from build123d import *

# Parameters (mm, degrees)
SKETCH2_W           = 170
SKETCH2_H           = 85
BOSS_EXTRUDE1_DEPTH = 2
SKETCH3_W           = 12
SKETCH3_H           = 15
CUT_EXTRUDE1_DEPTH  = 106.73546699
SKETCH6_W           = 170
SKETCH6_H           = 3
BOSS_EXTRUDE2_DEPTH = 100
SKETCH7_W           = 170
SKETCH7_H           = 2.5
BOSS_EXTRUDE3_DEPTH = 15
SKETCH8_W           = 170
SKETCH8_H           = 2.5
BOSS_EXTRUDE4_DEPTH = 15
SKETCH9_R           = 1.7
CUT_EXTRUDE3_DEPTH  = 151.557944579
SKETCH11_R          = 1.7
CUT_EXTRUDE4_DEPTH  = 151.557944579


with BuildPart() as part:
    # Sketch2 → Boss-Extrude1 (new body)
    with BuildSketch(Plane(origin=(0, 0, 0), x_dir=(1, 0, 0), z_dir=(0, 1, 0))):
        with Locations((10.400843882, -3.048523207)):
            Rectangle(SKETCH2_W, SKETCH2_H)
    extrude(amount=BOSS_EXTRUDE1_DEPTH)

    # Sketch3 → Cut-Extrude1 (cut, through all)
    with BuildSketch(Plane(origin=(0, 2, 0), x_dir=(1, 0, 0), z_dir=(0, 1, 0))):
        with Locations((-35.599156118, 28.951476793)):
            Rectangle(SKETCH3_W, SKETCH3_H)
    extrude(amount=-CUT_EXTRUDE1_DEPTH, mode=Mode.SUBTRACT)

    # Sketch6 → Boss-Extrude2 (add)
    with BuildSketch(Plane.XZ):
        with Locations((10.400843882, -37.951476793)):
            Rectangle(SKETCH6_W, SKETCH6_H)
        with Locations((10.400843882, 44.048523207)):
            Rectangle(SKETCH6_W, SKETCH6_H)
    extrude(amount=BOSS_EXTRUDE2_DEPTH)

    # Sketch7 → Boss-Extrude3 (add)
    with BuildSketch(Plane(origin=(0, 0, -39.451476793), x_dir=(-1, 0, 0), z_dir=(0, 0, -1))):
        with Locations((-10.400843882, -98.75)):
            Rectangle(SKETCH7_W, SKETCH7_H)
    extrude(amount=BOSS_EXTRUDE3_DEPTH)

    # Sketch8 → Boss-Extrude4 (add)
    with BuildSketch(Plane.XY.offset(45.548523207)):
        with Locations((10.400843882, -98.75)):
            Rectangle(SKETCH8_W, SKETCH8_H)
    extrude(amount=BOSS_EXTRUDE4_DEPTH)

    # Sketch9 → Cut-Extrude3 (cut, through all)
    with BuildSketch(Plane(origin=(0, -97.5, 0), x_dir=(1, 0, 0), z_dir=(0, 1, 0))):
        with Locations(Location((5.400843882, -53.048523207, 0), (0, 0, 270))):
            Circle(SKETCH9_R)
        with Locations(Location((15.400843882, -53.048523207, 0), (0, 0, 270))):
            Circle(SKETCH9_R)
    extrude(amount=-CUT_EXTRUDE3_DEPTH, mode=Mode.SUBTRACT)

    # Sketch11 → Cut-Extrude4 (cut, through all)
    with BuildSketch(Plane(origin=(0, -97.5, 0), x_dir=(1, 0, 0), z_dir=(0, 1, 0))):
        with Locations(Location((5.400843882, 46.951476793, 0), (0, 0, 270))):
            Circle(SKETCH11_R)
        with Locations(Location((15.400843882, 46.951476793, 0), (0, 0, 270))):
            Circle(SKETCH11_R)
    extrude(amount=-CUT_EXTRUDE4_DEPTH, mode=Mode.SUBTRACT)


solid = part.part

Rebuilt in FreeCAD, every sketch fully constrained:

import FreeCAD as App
import Part
import Sketcher
from FreeCAD import Vector
Q = App.Units.Quantity

doc = App.newDocument("Part")
body = doc.addObject("PartDesign::Body", "Body")

sketch1 = body.newObject("Sketcher::SketchObject", "Sketch")
sketch1.AttachmentSupport = (doc.getObject("XZ_Plane"), [""])
sketch1.MapMode = "FlatFace"
sketch1.addGeometry(Part.LineSegment(Vector(-75, -39, 0), Vector(-75, 46, 0)), False)
sketch1.addGeometry(Part.LineSegment(Vector(-75, 46, 0), Vector(95, 46, 0)), False)
sketch1.addGeometry(Part.LineSegment(Vector(95, 46, 0), Vector(95, -39, 0)), False)
sketch1.addGeometry(Part.LineSegment(Vector(95, -39, 0), Vector(-75, -39, 0)), False)
sketch1.addConstraint(Sketcher.Constraint("Coincident", 0, 2, 1, 1))
sketch1.addConstraint(Sketcher.Constraint("Coincident", 1, 2, 2, 1))
sketch1.addConstraint(Sketcher.Constraint("Coincident", 2, 2, 3, 1))
sketch1.addConstraint(Sketcher.Constraint("Coincident", 3, 2, 0, 1))
sketch1.addConstraint(Sketcher.Constraint("Vertical", 0))
sketch1.addConstraint(Sketcher.Constraint("Horizontal", 1))
sketch1.addConstraint(Sketcher.Constraint("Vertical", 2))
sketch1.addConstraint(Sketcher.Constraint("Horizontal", 3))
sketch1.addConstraint(Sketcher.Constraint("DistanceX", 1, 1, 1, 2, Q("170 mm")))
sketch1.addConstraint(Sketcher.Constraint("DistanceY", 0, 1, 0, 2, Q("85 mm")))
sketch1.addConstraint(Sketcher.Constraint("DistanceX", 0, 2, -1, 1, Q("74.599156 mm")))
sketch1.addConstraint(Sketcher.Constraint("DistanceY", -1, 1, 0, 2, Q("45.548523 mm")))
pad1 = body.newObject("PartDesign::Pad", "Pad")
pad1.Profile = sketch1
pad1.Length = 2
pad1.Reversed = True

sketch2 = body.newObject("Sketcher::SketchObject", "Sketch001")
sketch2.AttachmentSupport = (doc.getObject("XZ_Plane"), [""])
sketch2.MapMode = "FlatFace"
sketch2.AttachmentOffset = App.Placement(Vector(0, 0, -2), App.Rotation())
sketch2.addGeometry(Part.LineSegment(Vector(-42, -36, 0), Vector(-42, -21, 0)), False)
sketch2.addGeometry(Part.LineSegment(Vector(-42, -21, 0), Vector(-30, -21, 0)), False)
sketch2.addGeometry(Part.LineSegment(Vector(-30, -21, 0), Vector(-30, -36, 0)), False)
sketch2.addGeometry(Part.LineSegment(Vector(-30, -36, 0), Vector(-42, -36, 0)), False)
sketch2.addConstraint(Sketcher.Constraint("Coincident", 0, 2, 1, 1))
sketch2.addConstraint(Sketcher.Constraint("Coincident", 1, 2, 2, 1))
sketch2.addConstraint(Sketcher.Constraint("Coincident", 2, 2, 3, 1))
sketch2.addConstraint(Sketcher.Constraint("Coincident", 3, 2, 0, 1))
sketch2.addConstraint(Sketcher.Constraint("Vertical", 0))
sketch2.addConstraint(Sketcher.Constraint("Horizontal", 1))
sketch2.addConstraint(Sketcher.Constraint("Vertical", 2))
sketch2.addConstraint(Sketcher.Constraint("Horizontal", 3))
sketch2.addConstraint(Sketcher.Constraint("DistanceX", 1, 1, 1, 2, Q("12 mm")))
sketch2.addConstraint(Sketcher.Constraint("DistanceY", 0, 1, 0, 2, Q("15 mm")))
sketch2.addConstraint(Sketcher.Constraint("DistanceX", 0, 2, -1, 1, Q("41.599156 mm")))
sketch2.addConstraint(Sketcher.Constraint("DistanceY", 0, 2, -1, 1, Q("21.451477 mm")))
pocket1 = body.newObject("PartDesign::Pocket", "Pocket")
pocket1.Profile = sketch2
pocket1.Type = "ThroughAll"
pocket1.Reversed = True

sketch3 = body.newObject("Sketcher::SketchObject", "Sketch002")
sketch3.AttachmentSupport = (doc.getObject("XZ_Plane"), [""])
sketch3.MapMode = "FlatFace"
sketch3.addGeometry(Part.LineSegment(Vector(-74.6, -36.5, 0), Vector(-74.6, -39.5, 0)), False)
sketch3.addGeometry(Part.LineSegment(Vector(-74.6, -39.5, 0), Vector(95.4, -39.5, 0)), False)
sketch3.addGeometry(Part.LineSegment(Vector(95.4, -39.5, 0), Vector(95.4, -36.5, 0)), False)
sketch3.addGeometry(Part.LineSegment(Vector(95.4, -36.5, 0), Vector(-74.6, -36.5, 0)), False)
sketch3.addGeometry(Part.LineSegment(Vector(-74.6, 45.5, 0), Vector(-74.6, 42.5, 0)), False)
sketch3.addGeometry(Part.LineSegment(Vector(-74.6, 42.5, 0), Vector(95.4, 42.5, 0)), False)
sketch3.addGeometry(Part.LineSegment(Vector(95.4, 42.5, 0), Vector(95.4, 45.5, 0)), False)
sketch3.addGeometry(Part.LineSegment(Vector(95.4, 45.5, 0), Vector(-74.6, 45.5, 0)), False)
sketch3.addConstraint(Sketcher.Constraint("Coincident", 0, 2, 1, 1))
sketch3.addConstraint(Sketcher.Constraint("Coincident", 1, 2, 2, 1))
sketch3.addConstraint(Sketcher.Constraint("Coincident", 2, 2, 3, 1))
sketch3.addConstraint(Sketcher.Constraint("Coincident", 3, 2, 0, 1))
sketch3.addConstraint(Sketcher.Constraint("Coincident", 4, 2, 5, 1))
sketch3.addConstraint(Sketcher.Constraint("Coincident", 5, 2, 6, 1))
sketch3.addConstraint(Sketcher.Constraint("Coincident", 6, 2, 7, 1))
sketch3.addConstraint(Sketcher.Constraint("Coincident", 7, 2, 4, 1))
sketch3.addConstraint(Sketcher.Constraint("Vertical", 0))
sketch3.addConstraint(Sketcher.Constraint("Horizontal", 1))
sketch3.addConstraint(Sketcher.Constraint("Vertical", 2))
sketch3.addConstraint(Sketcher.Constraint("Horizontal", 3))
sketch3.addConstraint(Sketcher.Constraint("Vertical", 4))
sketch3.addConstraint(Sketcher.Constraint("Horizontal", 5))
sketch3.addConstraint(Sketcher.Constraint("Vertical", 6))
sketch3.addConstraint(Sketcher.Constraint("Horizontal", 7))
sketch3.addConstraint(Sketcher.Constraint("Vertical", 3, 2, 4, 2))
sketch3.addConstraint(Sketcher.Constraint("Vertical", 2, 2, 5, 2))
sketch3.addConstraint(Sketcher.Constraint("Equal", 2, 4))
sketch3.addConstraint(Sketcher.Constraint("DistanceX", 1, 1, 1, 2, Q("170 mm")))
sketch3.addConstraint(Sketcher.Constraint("DistanceY", 0, 2, 0, 1, Q("3 mm")))
sketch3.addConstraint(Sketcher.Constraint("DistanceY", 3, 2, 4, 2, Q("79 mm")))
sketch3.addConstraint(Sketcher.Constraint("DistanceX", 0, 2, -1, 1, Q("74.599156 mm")))
sketch3.addConstraint(Sketcher.Constraint("DistanceY", 0, 2, -1, 1, Q("39.451477 mm")))
pad2 = body.newObject("PartDesign::Pad", "Pad001")
pad2.Profile = sketch3
pad2.Length = 100

sketch4 = body.newObject("Sketcher::SketchObject", "Sketch003")
sketch4.AttachmentSupport = (doc.getObject("XY_Plane"), [""])
sketch4.MapMode = "FlatFace"
sketch4.AttachmentOffset = App.Placement(Vector(0, 0, -39.451477), App.Rotation())
sketch4.addGeometry(Part.LineSegment(Vector(95.4, -97.5, 0), Vector(95.4, -100, 0)), False)
sketch4.addGeometry(Part.LineSegment(Vector(95.4, -100, 0), Vector(-74.6, -100, 0)), False)
sketch4.addGeometry(Part.LineSegment(Vector(-74.6, -100, 0), Vector(-74.6, -97.5, 0)), False)
sketch4.addGeometry(Part.LineSegment(Vector(-74.6, -97.5, 0), Vector(95.4, -97.5, 0)), False)
sketch4.addConstraint(Sketcher.Constraint("Coincident", 0, 2, 1, 1))
sketch4.addConstraint(Sketcher.Constraint("Coincident", 1, 2, 2, 1))
sketch4.addConstraint(Sketcher.Constraint("Coincident", 2, 2, 3, 1))
sketch4.addConstraint(Sketcher.Constraint("Coincident", 3, 2, 0, 1))
sketch4.addConstraint(Sketcher.Constraint("Vertical", 0))
sketch4.addConstraint(Sketcher.Constraint("Horizontal", 1))
sketch4.addConstraint(Sketcher.Constraint("Vertical", 2))
sketch4.addConstraint(Sketcher.Constraint("Horizontal", 3))
sketch4.addConstraint(Sketcher.Constraint("DistanceX", 1, 2, 1, 1, Q("170 mm")))
sketch4.addConstraint(Sketcher.Constraint("DistanceY", 0, 2, 0, 1, Q("2.5 mm")))
sketch4.addConstraint(Sketcher.Constraint("DistanceY", 0, 2, -1, 1, Q("100 mm")))
sketch4.addConstraint(Sketcher.Constraint("DistanceX", -1, 1, 0, 2, Q("95.400844 mm")))
pad3 = body.newObject("PartDesign::Pad", "Pad002")
pad3.Profile = sketch4
pad3.Length = 15
pad3.Reversed = True

sketch5 = body.newObject("Sketcher::SketchObject", "Sketch004")
sketch5.AttachmentSupport = (doc.getObject("XY_Plane"), [""])
sketch5.MapMode = "FlatFace"
sketch5.AttachmentOffset = App.Placement(Vector(0, 0, 45.548523), App.Rotation())
sketch5.addGeometry(Part.LineSegment(Vector(-74.6, -97.5, 0), Vector(-74.6, -100, 0)), False)
sketch5.addGeometry(Part.LineSegment(Vector(-74.6, -100, 0), Vector(95.4, -100, 0)), False)
sketch5.addGeometry(Part.LineSegment(Vector(95.4, -100, 0), Vector(95.4, -97.5, 0)), False)
sketch5.addGeometry(Part.LineSegment(Vector(95.4, -97.5, 0), Vector(-74.6, -97.5, 0)), False)
sketch5.addConstraint(Sketcher.Constraint("Coincident", 0, 2, 1, 1))
sketch5.addConstraint(Sketcher.Constraint("Coincident", 1, 2, 2, 1))
sketch5.addConstraint(Sketcher.Constraint("Coincident", 2, 2, 3, 1))
sketch5.addConstraint(Sketcher.Constraint("Coincident", 3, 2, 0, 1))
sketch5.addConstraint(Sketcher.Constraint("Vertical", 0))
sketch5.addConstraint(Sketcher.Constraint("Horizontal", 1))
sketch5.addConstraint(Sketcher.Constraint("Vertical", 2))
sketch5.addConstraint(Sketcher.Constraint("Horizontal", 3))
sketch5.addConstraint(Sketcher.Constraint("DistanceX", 1, 1, 1, 2, Q("170 mm")))
sketch5.addConstraint(Sketcher.Constraint("DistanceY", 0, 2, 0, 1, Q("2.5 mm")))
sketch5.addConstraint(Sketcher.Constraint("DistanceY", 0, 2, -1, 1, Q("100 mm")))
sketch5.addConstraint(Sketcher.Constraint("DistanceX", 0, 2, -1, 1, Q("74.599156 mm")))
pad4 = body.newObject("PartDesign::Pad", "Pad003")
pad4.Profile = sketch5
pad4.Length = 15

sketch6 = body.newObject("Sketcher::SketchObject", "Sketch005")
sketch6.AttachmentSupport = (doc.getObject("XZ_Plane"), [""])
sketch6.MapMode = "FlatFace"
sketch6.AttachmentOffset = App.Placement(Vector(0, 0, 97.5), App.Rotation())
sketch6.addGeometry(Part.Circle(Vector(5.4, 53, 0), Vector(0, 0, 1), 1.7), False)
sketch6.addGeometry(Part.Circle(Vector(15.4, 53, 0), Vector(0, 0, 1), 1.7), False)
sketch6.addConstraint(Sketcher.Constraint("Equal", 0, 1))
sketch6.addConstraint(Sketcher.Constraint("Horizontal", 0, 3, 1, 3))
sketch6.addConstraint(Sketcher.Constraint("Diameter", 0, Q("3.4 mm")))
sketch6.addConstraint(Sketcher.Constraint("DistanceX", 0, 3, 1, 3, Q("10 mm")))
sketch6.addConstraint(Sketcher.Constraint("DistanceX", -1, 1, 0, 3, Q("5.400844 mm")))
sketch6.addConstraint(Sketcher.Constraint("DistanceY", -1, 1, 0, 3, Q("53.048523 mm")))
pocket2 = body.newObject("PartDesign::Pocket", "Pocket001")
pocket2.Profile = sketch6
pocket2.Type = "ThroughAll"
pocket2.Reversed = True

sketch7 = body.newObject("Sketcher::SketchObject", "Sketch006")
sketch7.AttachmentSupport = (doc.getObject("XZ_Plane"), [""])
sketch7.MapMode = "FlatFace"
sketch7.AttachmentOffset = App.Placement(Vector(0, 0, 97.5), App.Rotation())
sketch7.addGeometry(Part.Circle(Vector(5.4, -47, 0), Vector(0, 0, 1), 1.7), False)
sketch7.addGeometry(Part.Circle(Vector(15.4, -47, 0), Vector(0, 0, 1), 1.7), False)
sketch7.addConstraint(Sketcher.Constraint("Equal", 0, 1))
sketch7.addConstraint(Sketcher.Constraint("Horizontal", 0, 3, 1, 3))
sketch7.addConstraint(Sketcher.Constraint("Diameter", 0, Q("3.4 mm")))
sketch7.addConstraint(Sketcher.Constraint("DistanceX", 0, 3, 1, 3, Q("10 mm")))
sketch7.addConstraint(Sketcher.Constraint("DistanceX", -1, 1, 0, 3, Q("5.400844 mm")))
sketch7.addConstraint(Sketcher.Constraint("DistanceY", 0, 3, -1, 1, Q("46.951477 mm")))
pocket3 = body.newObject("PartDesign::Pocket", "Pocket002")
pocket3.Profile = sketch7
pocket3.Type = "ThroughAll"
pocket3.Reversed = True

doc.recompute()
